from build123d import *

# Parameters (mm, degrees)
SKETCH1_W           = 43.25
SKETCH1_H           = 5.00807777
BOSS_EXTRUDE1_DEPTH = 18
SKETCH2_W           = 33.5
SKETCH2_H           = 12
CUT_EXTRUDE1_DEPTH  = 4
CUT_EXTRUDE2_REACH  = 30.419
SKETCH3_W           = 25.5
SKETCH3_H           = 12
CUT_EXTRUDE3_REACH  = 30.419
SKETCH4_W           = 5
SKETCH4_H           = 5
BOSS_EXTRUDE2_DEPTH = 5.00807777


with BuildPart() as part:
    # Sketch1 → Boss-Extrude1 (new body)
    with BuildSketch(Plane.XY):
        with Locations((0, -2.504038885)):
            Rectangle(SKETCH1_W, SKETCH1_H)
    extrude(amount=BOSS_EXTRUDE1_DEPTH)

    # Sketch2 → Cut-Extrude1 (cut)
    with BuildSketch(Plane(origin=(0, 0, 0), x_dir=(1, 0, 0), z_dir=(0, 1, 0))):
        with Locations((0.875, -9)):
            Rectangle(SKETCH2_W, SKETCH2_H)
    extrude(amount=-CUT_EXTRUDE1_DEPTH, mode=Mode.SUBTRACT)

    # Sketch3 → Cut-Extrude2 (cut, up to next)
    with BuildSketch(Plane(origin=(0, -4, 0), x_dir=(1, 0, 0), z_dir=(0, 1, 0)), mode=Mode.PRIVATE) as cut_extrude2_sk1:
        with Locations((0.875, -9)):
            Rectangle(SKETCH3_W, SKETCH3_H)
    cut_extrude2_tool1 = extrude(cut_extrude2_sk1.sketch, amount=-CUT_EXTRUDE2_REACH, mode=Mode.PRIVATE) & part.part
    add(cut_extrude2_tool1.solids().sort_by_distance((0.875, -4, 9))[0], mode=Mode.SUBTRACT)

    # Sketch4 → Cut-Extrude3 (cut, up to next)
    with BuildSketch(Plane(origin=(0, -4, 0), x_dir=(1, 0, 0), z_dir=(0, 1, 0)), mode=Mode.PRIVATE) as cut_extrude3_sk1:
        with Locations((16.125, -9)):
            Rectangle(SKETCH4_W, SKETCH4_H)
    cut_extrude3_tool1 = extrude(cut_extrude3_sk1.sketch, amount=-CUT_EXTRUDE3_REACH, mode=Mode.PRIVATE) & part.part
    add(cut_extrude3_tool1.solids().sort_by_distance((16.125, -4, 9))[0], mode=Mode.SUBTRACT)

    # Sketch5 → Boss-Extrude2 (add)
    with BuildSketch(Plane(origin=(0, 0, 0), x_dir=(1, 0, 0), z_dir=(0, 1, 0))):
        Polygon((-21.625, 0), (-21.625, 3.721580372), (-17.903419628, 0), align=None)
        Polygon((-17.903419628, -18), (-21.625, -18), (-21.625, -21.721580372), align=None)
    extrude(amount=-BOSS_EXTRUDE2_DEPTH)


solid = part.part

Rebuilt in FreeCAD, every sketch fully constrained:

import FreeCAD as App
import Part
import Sketcher

V = App.Vector


def add_polygon(sketch, points):
    """Adds a closed chain of lines whose ends are joined by coincident constraints."""
    first, n = sketch.GeometryCount, len(points)
    for a, b in zip(points, points[1:] + points[:1]):
        sketch.addGeometry(Part.LineSegment(App.Vector(*a, 0), App.Vector(*b, 0)), False)
    for i in range(n):
        sketch.addConstraint(Sketcher.Constraint("Coincident", first + i, 2, first + (i + 1) % n, 1))

doc = App.newDocument("Part")
body = doc.addObject("PartDesign::Body", "Body")

sketch1 = body.newObject("Sketcher::SketchObject", "Sketch")
sketch1.AttachmentSupport = (doc.getObject("XY_Plane"), [""])
sketch1.MapMode = "FlatFace"
add_polygon(sketch1, [(-22, 0), (-22, -5), (22, -5), (22, 0)])
sketch1.addConstraint(Sketcher.Constraint("Vertical", 0))
sketch1.addConstraint(Sketcher.Constraint("Horizontal", 1))
sketch1.addConstraint(Sketcher.Constraint("Vertical", 2))
sketch1.addConstraint(Sketcher.Constraint("Horizontal", 3))
sketch1.addConstraint(Sketcher.Constraint("Symmetric", 2, 2, 3, 2, -1, 1))
sketch1.addConstraint(Sketcher.Constraint("DistanceX", 1, 1, 1, 2, 43.25))
sketch1.addConstraint(Sketcher.Constraint("DistanceY", 0, 2, 0, 1, 5.008078))
pad1 = body.newObject("PartDesign::Pad", "Pad")
pad1.Profile = sketch1
pad1.Length = 18

sketch2 = body.newObject("Sketcher::SketchObject", "Sketch001")
sketch2.AttachmentSupport = (doc.getObject("XZ_Plane"), [""])
sketch2.MapMode = "FlatFace"
add_polygon(sketch2, [(-16, 3), (-16, 15), (18, 15), (18, 3)])
sketch2.addConstraint(Sketcher.Constraint("Vertical", 0))
sketch2.addConstraint(Sketcher.Constraint("Horizontal", 1))
sketch2.addConstraint(Sketcher.Constraint("Vertical", 2))
sketch2.addConstraint(Sketcher.Constraint("Horizontal", 3))
sketch2.addConstraint(Sketcher.Constraint("DistanceY", 0, 1, 0, 2, 12.0))
sketch2.addConstraint(Sketcher.Constraint("DistanceX", 1, 1, 1, 2, 33.5))
sketch2.addConstraint(Sketcher.Constraint("DistanceY", -1, 1, 0, 2, 15.0))
sketch2.addConstraint(Sketcher.Constraint("DistanceX", 0, 2, -1, 1, 15.875))
pocket1 = body.newObject("PartDesign::Pocket", "Pocket")
pocket1.Profile = sketch2
pocket1.Length = 4
pocket1.Reversed = True

sketch3 = body.newObject("Sketcher::SketchObject", "Sketch002")
sketch3.AttachmentSupport = (doc.getObject("XZ_Plane"), [""])
sketch3.MapMode = "FlatFace"
sketch3.AttachmentOffset = App.Placement(V(0, 0, 4), App.Rotation())
add_polygon(sketch3, [(-12, 3), (-12, 15), (14, 15), (14, 3)])
sketch3.addConstraint(Sketcher.Constraint("Vertical", 0))
sketch3.addConstraint(Sketcher.Constraint("Horizontal", 1))
sketch3.addConstraint(Sketcher.Constraint("Vertical", 2))
sketch3.addConstraint(Sketcher.Constraint("Horizontal", 3))
sketch3.addConstraint(Sketcher.Constraint("DistanceY", 0, 1, 0, 2, 12.0))
sketch3.addConstraint(Sketcher.Constraint("DistanceX", 1, 1, 1, 2, 25.5))
sketch3.addConstraint(Sketcher.Constraint("DistanceY", -1, 1, 0, 2, 15.0))
sketch3.addConstraint(Sketcher.Constraint("DistanceX", 0, 2, -1, 1, 11.875))
pocket2 = body.newObject("PartDesign::Pocket", "Pocket001")
pocket2.Profile = sketch3
pocket2.Type = "UpToFirst"
pocket2.Reversed = True

sketch4 = body.newObject("Sketcher::SketchObject", "Sketch003")
sketch4.AttachmentSupport = (doc.getObject("XZ_Plane"), [""])
sketch4.MapMode = "FlatFace"
sketch4.AttachmentOffset = App.Placement(V(0, 0, 4), App.Rotation())
add_polygon(sketch4, [(14, 6), (14, 12), (19, 12), (19, 6)])
sketch4.addConstraint(Sketcher.Constraint("Vertical", 0))
sketch4.addConstraint(Sketcher.Constraint("Horizontal", 1))
sketch4.addConstraint(Sketcher.Constraint("Vertical", 2))
sketch4.addConstraint(Sketcher.Constraint("Horizontal", 3))
sketch4.addConstraint(Sketcher.Constraint("Equal", 3, 0))
sketch4.addConstraint(Sketcher.Constraint("DistanceX", 1, 1, 1, 2, 5.0))
sketch4.addConstraint(Sketcher.Constraint("DistanceY", -1, 1, 0, 2, 11.5))
sketch4.addConstraint(Sketcher.Constraint("DistanceX", -1, 1, 0, 2, 13.625))
pocket3 = body.newObject("PartDesign::Pocket", "Pocket002")
pocket3.Profile = sketch4
pocket3.Type = "UpToFirst"
pocket3.Reversed = True

sketch5 = body.newObject("Sketcher::SketchObject", "Sketch004")
sketch5.AttachmentSupport = (doc.getObject("XZ_Plane"), [""])
sketch5.MapMode = "FlatFace"
add_polygon(sketch5, [(-21.6, -3.7), (-21.6, 0), (-17.9, 0)])
add_polygon(sketch5, [(-17.9, 18), (-21.6, 18), (-21.6, 21.7)])
sketch5.addConstraint(Sketcher.Constraint("Vertical", 0))
sketch5.addConstraint(Sketcher.Constraint("Horizontal", 1))
sketch5.addConstraint(Sketcher.Constraint("Horizontal", 3))
sketch5.addConstraint(Sketcher.Constraint("Vertical", 4))
sketch5.addConstraint(Sketcher.Constraint("PointOnObject", 0, 2, -1))
sketch5.addConstraint(Sketcher.Constraint("Perpendicular", 2, 5))
sketch5.addConstraint(Sketcher.Constraint("Vertical", 2, 2, 3, 2))
sketch5.addConstraint(Sketcher.Constraint("Vertical", 1, 2, 5, 2))
sketch5.addConstraint(Sketcher.Constraint("Equal", 3, 0))
sketch5.addConstraint(Sketcher.Constraint("DistanceY", -1, 1, 3, 2, 18.0))
sketch5.addConstraint(Sketcher.Constraint("DistanceX", 0, 2, -1, 1, 21.625))
sketch5.addConstraint(Sketcher.Constraint("DistanceX", 1, 1, 1, 2, 3.72158))
pad2 = body.newObject("PartDesign::Pad", "Pad001")
pad2.Profile = sketch5
pad2.Length = 5.008078

doc.recompute()
